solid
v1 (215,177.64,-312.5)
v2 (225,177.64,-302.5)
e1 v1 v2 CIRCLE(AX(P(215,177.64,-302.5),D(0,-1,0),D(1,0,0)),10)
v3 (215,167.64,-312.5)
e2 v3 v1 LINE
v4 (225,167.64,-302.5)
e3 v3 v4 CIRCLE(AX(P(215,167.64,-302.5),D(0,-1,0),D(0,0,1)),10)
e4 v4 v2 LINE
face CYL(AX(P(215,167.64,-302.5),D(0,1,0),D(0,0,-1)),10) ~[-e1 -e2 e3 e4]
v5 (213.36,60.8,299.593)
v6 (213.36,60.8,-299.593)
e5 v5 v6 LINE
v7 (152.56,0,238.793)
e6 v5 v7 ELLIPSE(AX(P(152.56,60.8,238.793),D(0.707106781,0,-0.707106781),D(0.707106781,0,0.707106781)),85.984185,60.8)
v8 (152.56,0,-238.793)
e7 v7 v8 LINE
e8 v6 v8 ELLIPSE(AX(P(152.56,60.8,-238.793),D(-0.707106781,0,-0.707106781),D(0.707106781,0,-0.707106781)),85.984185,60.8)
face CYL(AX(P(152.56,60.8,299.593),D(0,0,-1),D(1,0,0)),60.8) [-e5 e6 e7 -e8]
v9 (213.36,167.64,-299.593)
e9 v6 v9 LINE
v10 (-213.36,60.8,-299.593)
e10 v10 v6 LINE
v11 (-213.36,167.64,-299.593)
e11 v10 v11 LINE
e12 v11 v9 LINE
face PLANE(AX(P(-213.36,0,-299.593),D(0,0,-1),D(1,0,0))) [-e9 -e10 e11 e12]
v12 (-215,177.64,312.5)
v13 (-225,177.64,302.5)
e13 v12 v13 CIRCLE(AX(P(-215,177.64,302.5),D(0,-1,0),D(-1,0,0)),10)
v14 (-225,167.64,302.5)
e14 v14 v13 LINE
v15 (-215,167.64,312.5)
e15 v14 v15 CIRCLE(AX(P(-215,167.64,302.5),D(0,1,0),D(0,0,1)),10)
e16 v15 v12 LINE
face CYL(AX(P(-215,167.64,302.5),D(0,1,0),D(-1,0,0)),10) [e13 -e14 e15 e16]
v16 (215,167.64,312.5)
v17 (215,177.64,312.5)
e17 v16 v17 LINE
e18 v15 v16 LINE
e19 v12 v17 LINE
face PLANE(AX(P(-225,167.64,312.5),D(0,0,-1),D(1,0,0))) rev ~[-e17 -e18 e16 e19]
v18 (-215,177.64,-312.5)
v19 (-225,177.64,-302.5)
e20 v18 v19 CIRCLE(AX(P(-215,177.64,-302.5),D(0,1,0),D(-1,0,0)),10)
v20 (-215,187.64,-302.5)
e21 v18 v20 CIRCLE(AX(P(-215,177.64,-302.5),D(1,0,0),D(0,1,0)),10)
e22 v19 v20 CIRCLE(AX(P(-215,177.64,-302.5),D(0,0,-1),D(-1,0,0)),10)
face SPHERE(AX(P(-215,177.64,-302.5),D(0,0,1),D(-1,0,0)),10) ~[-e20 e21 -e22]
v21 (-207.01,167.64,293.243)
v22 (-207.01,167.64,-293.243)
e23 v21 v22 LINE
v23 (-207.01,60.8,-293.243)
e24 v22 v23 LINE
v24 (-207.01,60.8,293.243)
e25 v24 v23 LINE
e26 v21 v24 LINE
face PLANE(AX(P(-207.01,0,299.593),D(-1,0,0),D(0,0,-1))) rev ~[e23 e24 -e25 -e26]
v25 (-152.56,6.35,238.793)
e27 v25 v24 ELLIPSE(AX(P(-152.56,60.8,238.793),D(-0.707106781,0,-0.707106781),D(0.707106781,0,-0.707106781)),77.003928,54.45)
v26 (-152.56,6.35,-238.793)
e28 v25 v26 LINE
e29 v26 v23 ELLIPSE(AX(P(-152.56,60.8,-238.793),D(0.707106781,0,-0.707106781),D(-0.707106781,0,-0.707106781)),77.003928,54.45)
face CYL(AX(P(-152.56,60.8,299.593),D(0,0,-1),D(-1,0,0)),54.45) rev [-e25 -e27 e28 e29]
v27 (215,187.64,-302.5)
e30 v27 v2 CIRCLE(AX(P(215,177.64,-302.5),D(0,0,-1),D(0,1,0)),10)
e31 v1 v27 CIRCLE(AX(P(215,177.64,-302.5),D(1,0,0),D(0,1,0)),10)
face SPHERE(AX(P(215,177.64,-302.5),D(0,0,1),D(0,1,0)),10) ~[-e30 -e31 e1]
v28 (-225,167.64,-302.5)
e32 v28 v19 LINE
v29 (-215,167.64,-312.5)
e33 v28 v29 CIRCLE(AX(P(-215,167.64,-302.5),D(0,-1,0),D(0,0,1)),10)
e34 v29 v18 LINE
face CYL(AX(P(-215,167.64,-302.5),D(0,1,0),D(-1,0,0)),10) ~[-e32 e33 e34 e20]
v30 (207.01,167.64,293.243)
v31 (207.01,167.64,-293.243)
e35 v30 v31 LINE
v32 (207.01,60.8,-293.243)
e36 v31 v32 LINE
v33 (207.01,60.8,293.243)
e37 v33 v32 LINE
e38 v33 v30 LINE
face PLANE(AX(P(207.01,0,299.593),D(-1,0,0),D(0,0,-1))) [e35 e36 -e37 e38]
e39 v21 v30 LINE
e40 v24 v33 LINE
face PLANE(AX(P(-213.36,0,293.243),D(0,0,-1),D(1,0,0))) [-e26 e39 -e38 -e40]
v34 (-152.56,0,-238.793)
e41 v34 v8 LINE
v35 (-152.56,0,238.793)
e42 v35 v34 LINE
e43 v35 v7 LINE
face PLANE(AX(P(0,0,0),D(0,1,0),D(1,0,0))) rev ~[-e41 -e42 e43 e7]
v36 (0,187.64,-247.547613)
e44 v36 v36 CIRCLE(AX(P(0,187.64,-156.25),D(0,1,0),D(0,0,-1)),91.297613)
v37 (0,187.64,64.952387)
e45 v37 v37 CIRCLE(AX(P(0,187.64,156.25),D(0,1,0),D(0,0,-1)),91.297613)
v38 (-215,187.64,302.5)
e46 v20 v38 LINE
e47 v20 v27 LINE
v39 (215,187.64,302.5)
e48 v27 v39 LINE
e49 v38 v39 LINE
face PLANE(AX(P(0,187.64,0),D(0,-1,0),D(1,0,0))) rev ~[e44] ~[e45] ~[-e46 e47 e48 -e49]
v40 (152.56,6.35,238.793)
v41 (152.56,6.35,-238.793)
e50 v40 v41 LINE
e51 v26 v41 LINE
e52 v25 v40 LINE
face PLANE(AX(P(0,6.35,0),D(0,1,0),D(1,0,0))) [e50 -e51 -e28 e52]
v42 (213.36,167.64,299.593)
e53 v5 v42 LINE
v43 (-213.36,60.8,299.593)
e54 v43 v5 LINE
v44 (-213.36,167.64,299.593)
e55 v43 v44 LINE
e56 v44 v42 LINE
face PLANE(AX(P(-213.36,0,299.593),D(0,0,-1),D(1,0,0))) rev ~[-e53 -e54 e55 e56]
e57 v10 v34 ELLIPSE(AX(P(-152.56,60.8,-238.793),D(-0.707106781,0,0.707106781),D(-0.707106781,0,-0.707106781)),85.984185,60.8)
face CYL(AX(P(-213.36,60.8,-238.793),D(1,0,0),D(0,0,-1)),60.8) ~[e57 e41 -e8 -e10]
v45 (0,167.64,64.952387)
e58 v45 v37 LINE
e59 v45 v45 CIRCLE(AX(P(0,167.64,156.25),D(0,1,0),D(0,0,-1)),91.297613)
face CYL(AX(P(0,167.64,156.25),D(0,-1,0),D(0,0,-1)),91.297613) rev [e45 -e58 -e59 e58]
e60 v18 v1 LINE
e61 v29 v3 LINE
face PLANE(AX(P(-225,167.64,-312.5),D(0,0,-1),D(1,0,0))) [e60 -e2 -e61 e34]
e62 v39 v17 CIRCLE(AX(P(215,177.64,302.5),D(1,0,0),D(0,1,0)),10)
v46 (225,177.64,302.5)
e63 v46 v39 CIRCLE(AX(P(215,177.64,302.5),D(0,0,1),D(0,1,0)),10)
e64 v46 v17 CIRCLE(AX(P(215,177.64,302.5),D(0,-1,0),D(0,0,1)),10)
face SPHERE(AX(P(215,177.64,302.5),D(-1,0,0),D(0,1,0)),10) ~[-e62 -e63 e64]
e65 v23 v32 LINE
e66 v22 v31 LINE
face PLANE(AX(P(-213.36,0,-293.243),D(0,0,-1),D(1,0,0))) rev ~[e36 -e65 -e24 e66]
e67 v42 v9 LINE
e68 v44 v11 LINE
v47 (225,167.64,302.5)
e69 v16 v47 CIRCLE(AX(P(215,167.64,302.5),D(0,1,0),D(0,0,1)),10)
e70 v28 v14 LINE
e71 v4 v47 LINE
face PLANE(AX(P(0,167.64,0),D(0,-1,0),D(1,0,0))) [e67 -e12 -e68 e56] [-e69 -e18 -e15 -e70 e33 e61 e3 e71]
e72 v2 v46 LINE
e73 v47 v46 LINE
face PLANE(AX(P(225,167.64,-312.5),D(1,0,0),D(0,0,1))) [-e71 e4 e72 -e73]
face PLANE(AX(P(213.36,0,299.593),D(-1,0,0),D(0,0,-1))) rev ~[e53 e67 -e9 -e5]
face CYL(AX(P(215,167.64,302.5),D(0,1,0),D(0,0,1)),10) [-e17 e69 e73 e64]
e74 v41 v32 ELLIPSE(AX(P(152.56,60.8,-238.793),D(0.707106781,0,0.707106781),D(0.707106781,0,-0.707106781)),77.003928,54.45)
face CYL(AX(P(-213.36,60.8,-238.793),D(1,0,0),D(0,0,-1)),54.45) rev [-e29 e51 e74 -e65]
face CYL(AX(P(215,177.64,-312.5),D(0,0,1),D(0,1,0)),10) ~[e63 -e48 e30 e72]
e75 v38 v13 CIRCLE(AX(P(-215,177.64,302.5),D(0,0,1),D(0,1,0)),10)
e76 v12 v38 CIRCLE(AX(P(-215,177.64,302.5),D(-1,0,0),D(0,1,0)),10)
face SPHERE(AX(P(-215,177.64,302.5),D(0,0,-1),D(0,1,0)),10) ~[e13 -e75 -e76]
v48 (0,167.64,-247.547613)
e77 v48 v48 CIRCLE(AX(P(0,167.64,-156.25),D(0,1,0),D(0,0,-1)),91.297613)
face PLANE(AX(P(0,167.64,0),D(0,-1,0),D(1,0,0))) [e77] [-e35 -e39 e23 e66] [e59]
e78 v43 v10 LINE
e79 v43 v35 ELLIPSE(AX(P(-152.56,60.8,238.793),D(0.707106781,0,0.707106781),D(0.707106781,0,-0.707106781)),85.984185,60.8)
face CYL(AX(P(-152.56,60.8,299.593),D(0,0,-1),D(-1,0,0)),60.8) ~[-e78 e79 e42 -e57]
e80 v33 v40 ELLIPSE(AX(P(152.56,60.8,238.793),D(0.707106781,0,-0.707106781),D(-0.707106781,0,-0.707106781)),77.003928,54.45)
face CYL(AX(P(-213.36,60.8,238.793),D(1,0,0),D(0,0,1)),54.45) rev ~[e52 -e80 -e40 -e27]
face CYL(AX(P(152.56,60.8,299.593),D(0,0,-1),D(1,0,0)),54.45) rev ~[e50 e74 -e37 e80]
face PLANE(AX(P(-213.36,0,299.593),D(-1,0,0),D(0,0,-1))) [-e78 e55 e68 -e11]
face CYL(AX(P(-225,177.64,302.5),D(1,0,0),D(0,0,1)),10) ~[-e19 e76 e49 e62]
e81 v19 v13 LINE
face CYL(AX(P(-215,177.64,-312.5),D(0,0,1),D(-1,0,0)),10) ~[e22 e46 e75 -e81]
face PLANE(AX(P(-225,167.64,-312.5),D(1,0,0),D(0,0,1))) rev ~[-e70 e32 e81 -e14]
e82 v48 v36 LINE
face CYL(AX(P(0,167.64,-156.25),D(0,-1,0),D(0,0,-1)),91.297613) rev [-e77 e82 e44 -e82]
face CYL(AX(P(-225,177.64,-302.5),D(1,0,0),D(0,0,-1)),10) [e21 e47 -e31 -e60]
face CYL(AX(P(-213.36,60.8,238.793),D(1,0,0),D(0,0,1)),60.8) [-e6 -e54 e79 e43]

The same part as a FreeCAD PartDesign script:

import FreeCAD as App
import Part
import Sketcher
from FreeCAD import Vector
Q = App.Units.Quantity


def edges_at(feature, points):
    """Names of the edges that pass closest to the given points."""
    edges = feature.Shape.Edges
    near = lambda p: min(range(len(edges)), key=lambda i: edges[i].distToShape(Part.Vertex(*p))[0])
    return sorted({f"Edge{near(p) + 1}" for p in points})


def faces_at(feature, points):
    """Names of the faces that lie closest to the given points."""
    faces = feature.Shape.Faces
    near = lambda p: min(range(len(faces)), key=lambda i: faces[i].distToShape(Part.Vertex(*p))[0])
    return sorted({f"Face{near(p) + 1}" for p in points})

doc = App.newDocument("Part")
body = doc.addObject("PartDesign::Body", "Body")

# Sketch on XZ plane
sketch1 = body.newObject("Sketcher::SketchObject", "Sketch")
sketch1.AttachmentSupport = (doc.getObject("XZ_Plane"), [""])
sketch1.MapMode = "FlatFace"
sketch1.addGeometry([
    Part.LineSegment(Vector(-213.36, -299.593, 0), Vector(-213.36, 299.593, 0)),
    Part.LineSegment(Vector(-213.36, 299.593, 0), Vector(213.36, 299.593, 0)),
    Part.LineSegment(Vector(213.36, 299.593, 0), Vector(213.36, -299.593, 0)),
    Part.LineSegment(Vector(213.36, -299.593, 0), Vector(-213.36, -299.593, 0)),
], False)
sketch1.addConstraint([
    Sketcher.Constraint("Coincident", 0, 2, 1, 1),
    Sketcher.Constraint("Coincident", 1, 2, 2, 1),
    Sketcher.Constraint("Coincident", 2, 2, 3, 1),
    Sketcher.Constraint("Coincident", 3, 2, 0, 1),
    Sketcher.Constraint("Vertical", 0),
    Sketcher.Constraint("Horizontal", 1),
    Sketcher.Constraint("Vertical", 2),
    Sketcher.Constraint("Horizontal", 3),
    Sketcher.Constraint("Symmetric", 0, 2, 2, 2, -1, 1),
    Sketcher.Constraint("DistanceX", 1, 1, 1, 2, Q("426.72 mm")),
    Sketcher.Constraint("DistanceY", 0, 1, 0, 2, Q("599.186 mm")),
])
pad1 = body.newObject("PartDesign::Pad", "Pad")
pad1.Profile = sketch1
pad1.Length = 167.64
pad1.Reversed = True
doc.recompute()

fillet = body.newObject("PartDesign::Fillet", "Fillet")
fillet.Base = (pad1, edges_at(pad1, [
    (0, 0, 299.593),
    (-213.36, 0, 0),
    (0, 0, -299.593),
    (213.36, 0, 0),
]))
fillet.Radius = 60.8
doc.recompute()

thickness = body.newObject("PartDesign::Thickness", "Thickness")
thickness.Base = (fillet, faces_at(fillet, [(0, 167.64, 0)]))
thickness.Value = 6.35
thickness.Reversed = True
thickness.Join = "Arc"

# Sketch on XZ plane
sketch2 = body.newObject("Sketcher::SketchObject", "Sketch001")
sketch2.AttachmentSupport = (doc.getObject("XZ_Plane"), [""])
sketch2.MapMode = "FlatFace"
sketch2.AttachmentOffset = App.Placement(Vector(0, 0, -167.64), App.Rotation())
sketch2.addGeometry([
    Part.LineSegment(Vector(-225, 312.5, 0), Vector(-225, -312.5, 0)),
    Part.LineSegment(Vector(-225, -312.5, 0), Vector(225, -312.5, 0)),
    Part.LineSegment(Vector(225, -312.5, 0), Vector(225, 312.5, 0)),
    Part.LineSegment(Vector(225, 312.5, 0), Vector(-225, 312.5, 0)),
], False)
sketch2.addConstraint([
    Sketcher.Constraint("Coincident", 0, 2, 1, 1),
    Sketcher.Constraint("Coincident", 1, 2, 2, 1),
    Sketcher.Constraint("Coincident", 2, 2, 3, 1),
    Sketcher.Constraint("Coincident", 3, 2, 0, 1),
    Sketcher.Constraint("Vertical", 0),
    Sketcher.Constraint("Horizontal", 1),
    Sketcher.Constraint("Vertical", 2),
    Sketcher.Constraint("Horizontal", 3),
    Sketcher.Constraint("Symmetric", 0, 2, 2, 2, -1, 1),
    Sketcher.Constraint("DistanceX", 1, 1, 1, 2, Q("450 mm")),
    Sketcher.Constraint("DistanceY", 0, 2, 0, 1, Q("625 mm")),
])
pad2 = body.newObject("PartDesign::Pad", "Pad001")
pad2.Profile = sketch2
pad2.Length = 20
pad2.Reversed = True

# Sketch on XZ plane
sketch3 = body.newObject("Sketcher::SketchObject", "Sketch002")
sketch3.AttachmentSupport = (doc.getObject("XZ_Plane"), [""])
sketch3.MapMode = "FlatFace"
sketch3.AttachmentOffset = App.Placement(Vector(0, 0, -167.64), App.Rotation())
sketch3.addGeometry([
    Part.Circle(Vector(0, 156.25, 0), Vector(0, 0, 1), 91.297613),
    Part.Circle(Vector(0, -156.25, 0), Vector(0, 0, 1), 91.297613),
], False)
sketch3.addConstraint([
    Sketcher.Constraint("Equal", 0, 1),
    Sketcher.Constraint("Symmetric", 0, 3, 1, 3, -1, 1),
    Sketcher.Constraint("PointOnObject", 0, 3, -2),
    Sketcher.Constraint("DistanceY", 1, 3, 0, 3, Q("312.5 mm")),
    Sketcher.Constraint("Diameter", 0, Q("182.595227 mm")),
])
pocket1 = body.newObject("PartDesign::Pocket", "Pocket")
pocket1.Profile = sketch3
pocket1.Length = 20
doc.recompute()

fillet2 = body.newObject("PartDesign::Fillet", "Fillet001")
fillet2.Base = (pocket1, edges_at(pocket1, [
    (-225, 187.64, 0),
    (-225, 177.64, -312.5),
    (0, 187.64, 312.5),
    (-225, 177.64, 312.5),
    (225, 187.64, 0),
    (225, 177.64, 312.5),
    (0, 187.64, -312.5),
    (225, 177.64, -312.5),
]))
fillet2.Radius = 10

doc.recompute()
